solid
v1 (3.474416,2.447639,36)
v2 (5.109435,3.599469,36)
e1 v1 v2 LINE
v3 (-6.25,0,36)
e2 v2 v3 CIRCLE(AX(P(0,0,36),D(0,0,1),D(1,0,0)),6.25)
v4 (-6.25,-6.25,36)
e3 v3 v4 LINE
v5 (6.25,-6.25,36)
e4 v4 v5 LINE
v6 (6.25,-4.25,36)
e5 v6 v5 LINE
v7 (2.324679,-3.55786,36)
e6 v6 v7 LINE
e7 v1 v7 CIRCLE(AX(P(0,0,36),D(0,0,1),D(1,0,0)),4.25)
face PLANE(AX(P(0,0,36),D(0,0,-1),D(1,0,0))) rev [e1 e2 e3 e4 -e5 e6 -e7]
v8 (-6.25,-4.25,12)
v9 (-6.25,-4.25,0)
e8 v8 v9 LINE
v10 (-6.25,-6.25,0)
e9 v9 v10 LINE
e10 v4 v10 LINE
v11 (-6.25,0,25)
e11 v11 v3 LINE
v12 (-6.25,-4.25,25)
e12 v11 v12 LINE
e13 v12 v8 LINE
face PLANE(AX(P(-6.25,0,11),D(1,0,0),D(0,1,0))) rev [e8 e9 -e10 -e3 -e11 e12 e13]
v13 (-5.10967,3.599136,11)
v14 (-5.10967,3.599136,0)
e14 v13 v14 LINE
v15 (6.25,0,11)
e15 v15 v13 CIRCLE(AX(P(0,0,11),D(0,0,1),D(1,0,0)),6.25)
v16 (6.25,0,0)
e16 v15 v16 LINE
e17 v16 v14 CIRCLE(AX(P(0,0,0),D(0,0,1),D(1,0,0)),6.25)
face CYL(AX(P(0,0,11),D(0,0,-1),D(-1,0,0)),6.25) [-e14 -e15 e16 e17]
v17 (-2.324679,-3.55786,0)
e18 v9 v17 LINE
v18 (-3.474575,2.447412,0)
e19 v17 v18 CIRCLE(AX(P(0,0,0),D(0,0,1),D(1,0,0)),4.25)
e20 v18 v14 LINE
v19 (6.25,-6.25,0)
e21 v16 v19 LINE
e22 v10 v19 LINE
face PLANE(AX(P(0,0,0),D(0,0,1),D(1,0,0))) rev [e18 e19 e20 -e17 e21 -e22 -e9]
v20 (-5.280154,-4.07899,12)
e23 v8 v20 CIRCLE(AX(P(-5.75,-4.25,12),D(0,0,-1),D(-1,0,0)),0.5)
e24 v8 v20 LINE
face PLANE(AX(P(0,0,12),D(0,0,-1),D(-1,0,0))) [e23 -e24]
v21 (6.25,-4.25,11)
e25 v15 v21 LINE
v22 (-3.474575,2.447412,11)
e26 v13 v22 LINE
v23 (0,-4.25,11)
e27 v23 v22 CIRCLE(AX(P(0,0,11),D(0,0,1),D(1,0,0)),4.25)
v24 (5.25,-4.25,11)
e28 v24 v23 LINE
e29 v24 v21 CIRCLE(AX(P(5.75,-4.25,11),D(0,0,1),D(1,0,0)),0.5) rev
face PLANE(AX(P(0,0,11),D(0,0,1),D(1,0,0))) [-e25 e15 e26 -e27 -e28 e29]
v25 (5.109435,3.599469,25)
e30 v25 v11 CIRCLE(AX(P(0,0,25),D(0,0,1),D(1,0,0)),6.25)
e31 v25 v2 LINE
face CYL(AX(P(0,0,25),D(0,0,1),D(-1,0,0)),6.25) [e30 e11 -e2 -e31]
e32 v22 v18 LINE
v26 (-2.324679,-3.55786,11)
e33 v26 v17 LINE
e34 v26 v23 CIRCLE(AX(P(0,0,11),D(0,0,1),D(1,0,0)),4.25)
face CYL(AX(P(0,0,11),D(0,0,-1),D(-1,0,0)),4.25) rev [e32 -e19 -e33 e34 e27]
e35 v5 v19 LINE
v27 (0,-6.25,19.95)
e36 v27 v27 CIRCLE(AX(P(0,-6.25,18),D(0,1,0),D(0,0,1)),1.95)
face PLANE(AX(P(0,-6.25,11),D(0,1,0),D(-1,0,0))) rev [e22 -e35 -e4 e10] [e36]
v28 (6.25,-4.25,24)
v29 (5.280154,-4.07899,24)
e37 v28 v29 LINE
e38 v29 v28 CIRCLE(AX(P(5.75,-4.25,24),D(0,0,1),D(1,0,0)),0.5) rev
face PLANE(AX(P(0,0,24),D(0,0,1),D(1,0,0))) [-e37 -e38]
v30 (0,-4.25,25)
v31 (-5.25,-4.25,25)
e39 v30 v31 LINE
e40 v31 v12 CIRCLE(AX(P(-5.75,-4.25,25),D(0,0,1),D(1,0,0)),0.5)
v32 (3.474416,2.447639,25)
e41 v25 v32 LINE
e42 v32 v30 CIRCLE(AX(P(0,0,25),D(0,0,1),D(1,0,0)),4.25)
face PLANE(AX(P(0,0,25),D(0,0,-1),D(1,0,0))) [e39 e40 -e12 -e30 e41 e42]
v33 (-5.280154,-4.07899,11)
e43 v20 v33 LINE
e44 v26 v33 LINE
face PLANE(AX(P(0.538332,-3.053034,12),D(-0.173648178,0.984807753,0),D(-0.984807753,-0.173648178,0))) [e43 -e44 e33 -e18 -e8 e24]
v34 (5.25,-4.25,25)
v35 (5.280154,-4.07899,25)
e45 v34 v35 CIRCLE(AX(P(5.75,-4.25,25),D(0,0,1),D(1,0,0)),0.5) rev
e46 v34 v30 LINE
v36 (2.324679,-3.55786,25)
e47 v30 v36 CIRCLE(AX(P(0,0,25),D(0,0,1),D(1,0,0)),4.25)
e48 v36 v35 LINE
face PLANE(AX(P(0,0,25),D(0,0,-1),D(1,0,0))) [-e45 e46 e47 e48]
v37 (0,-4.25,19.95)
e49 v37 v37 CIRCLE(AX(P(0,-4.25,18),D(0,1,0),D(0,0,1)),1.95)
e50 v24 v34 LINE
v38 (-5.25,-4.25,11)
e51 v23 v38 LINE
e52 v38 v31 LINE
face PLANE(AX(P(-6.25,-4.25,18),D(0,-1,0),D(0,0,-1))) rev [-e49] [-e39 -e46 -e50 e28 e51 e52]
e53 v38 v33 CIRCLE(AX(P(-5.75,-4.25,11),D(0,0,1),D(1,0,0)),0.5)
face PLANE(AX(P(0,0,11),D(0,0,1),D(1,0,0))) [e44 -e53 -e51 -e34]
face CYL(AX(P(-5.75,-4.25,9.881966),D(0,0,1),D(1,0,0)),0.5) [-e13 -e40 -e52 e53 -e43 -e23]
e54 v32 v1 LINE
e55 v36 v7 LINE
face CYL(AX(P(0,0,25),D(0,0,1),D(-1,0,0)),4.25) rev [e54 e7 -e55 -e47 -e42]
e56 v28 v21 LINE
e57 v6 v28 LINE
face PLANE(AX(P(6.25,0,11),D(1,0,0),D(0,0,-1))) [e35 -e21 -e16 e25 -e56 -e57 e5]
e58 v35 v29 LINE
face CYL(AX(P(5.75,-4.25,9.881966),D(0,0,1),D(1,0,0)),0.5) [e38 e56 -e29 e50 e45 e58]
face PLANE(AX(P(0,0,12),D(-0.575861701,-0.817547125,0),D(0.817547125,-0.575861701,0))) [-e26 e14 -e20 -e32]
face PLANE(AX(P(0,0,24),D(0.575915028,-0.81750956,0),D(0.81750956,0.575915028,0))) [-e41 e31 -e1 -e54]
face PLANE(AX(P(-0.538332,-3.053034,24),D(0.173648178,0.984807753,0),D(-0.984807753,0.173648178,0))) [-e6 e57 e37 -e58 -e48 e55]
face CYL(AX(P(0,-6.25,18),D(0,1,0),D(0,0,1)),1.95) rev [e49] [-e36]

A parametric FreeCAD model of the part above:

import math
import FreeCAD as App
import Part
import Sketcher
Q = App.Units.Quantity


def add_polygon(sketch, points):
    """Adds a closed chain of lines whose ends are joined by coincident constraints."""
    first, n = sketch.GeometryCount, len(points)
    for a, b in zip(points, points[1:] + points[:1]):
        sketch.addGeometry(Part.LineSegment(App.Vector(*a, 0), App.Vector(*b, 0)), False)
    for i in range(n):
        sketch.addConstraint(Sketcher.Constraint("Coincident", first + i, 2, first + (i + 1) % n, 1))

doc = App.newDocument("Part")
body = doc.addObject("PartDesign::Body", "Body")

# Sketch on XY plane
sketch1 = doc.addObject("Sketcher::SketchObject", "Sketch")
body.addObject(sketch1)
sketch1.AttachmentSupport = (doc.XY_Plane, [""])
sketch1.MapMode = "FlatFace"
sketch1.addGeometry([
    Part.LineSegment(App.Vector(-6.25, -6.25, 0), App.Vector(6.25, -6.25, 0)),  # 0
    Part.LineSegment(App.Vector(6.25, -6.25, 0), App.Vector(6.25, 0, 0)),  # 1
    Part.ArcOfCircle(Part.Circle(App.Vector(0, 0, 0), App.Vector(0, 0, 1), 6.25), math.radians(0), math.radians(90)),  # 2
    Part.ArcOfCircle(Part.Circle(App.Vector(0, 0, 0), App.Vector(0, 0, 1), 6.25), math.radians(90), math.radians(180)),  # 3
    Part.LineSegment(App.Vector(-6.25, 0, 0), App.Vector(-6.25, -6.25, 0)),  # 4
    Part.Circle(App.Vector(0, 0, 0), App.Vector(0, 0, 1), 4.25),  # 5
], False)
sketch1.addConstraint([
    Sketcher.Constraint("Coincident", 0, 2, 1, 1),
    Sketcher.Constraint("Tangent", 1, 2, 2, 1),
    Sketcher.Constraint("Tangent", 2, 2, 3, 1),
    Sketcher.Constraint("Tangent", 3, 2, 4, 1),
    Sketcher.Constraint("Coincident", 4, 2, 0, 1),
    Sketcher.Constraint("Horizontal", 0),
    Sketcher.Constraint("Vertical", 1),
    Sketcher.Constraint("Vertical", 4),
    Sketcher.Constraint("Coincident", 2, 3, -1, 1),
    Sketcher.Constraint("Coincident", 5, 3, -1, 1),
    Sketcher.Constraint("Equal", 2, 3),
    Sketcher.Constraint("PointOnObject", 2, 2, -2),
    Sketcher.Constraint("Diameter", 5, 8.5),
    Sketcher.Constraint("Radius", 2, 6.25),
    Sketcher.Constraint("DistanceY", 1, 1, 1, 2, 6.25),
])
pad1 = doc.addObject("PartDesign::Pad", "Pad")
body.addObject(pad1)
pad1.Profile = sketch1
pad1.Length = 11

# Sketch on XY plane
sketch2 = doc.addObject("Sketcher::SketchObject", "Sketch001")
body.addObject(sketch2)
sketch2.AttachmentSupport = (doc.XY_Plane, [""])
sketch2.MapMode = "FlatFace"
sketch2.AttachmentOffset = App.Placement(App.Vector(0, 0, 11), App.Rotation())
add_polygon(sketch2, [(-6.25, -4.25), (-6.25, -6.25), (6.25, -6.25), (6.25, -4.25)])  # lines 0-3
sketch2.addConstraint([
    Sketcher.Constraint("Vertical", 0),
    Sketcher.Constraint("Horizontal", 1),
    Sketcher.Constraint("Vertical", 2),
    Sketcher.Constraint("Horizontal", 3),
    Sketcher.Constraint("DistanceY", 0, 2, 0, 1, 2.0),
    Sketcher.Constraint("DistanceX", 1, 1, 1, 2, 12.5),
    Sketcher.Constraint("DistanceX", 0, 2, -1, 1, 6.25),
    Sketcher.Constraint("DistanceY", 0, 2, -1, 1, 6.25),
])
pad2 = doc.addObject("PartDesign::Pad", "Pad001")
body.addObject(pad2)
pad2.Profile = sketch2
pad2.Length = 7

# Sketch on XY plane
sketch3 = doc.addObject("Sketcher::SketchObject", "Sketch002")
body.addObject(sketch3)
sketch3.AttachmentSupport = (doc.XY_Plane, [""])
sketch3.MapMode = "FlatFace"
sketch3.AttachmentOffset = App.Placement(App.Vector(0, 0, 18), App.Rotation())
sketch3.addGeometry([
    Part.LineSegment(App.Vector(5.25, -4.25, 0), App.Vector(6.25, -4.25, 0)),
    Part.ArcOfCircle(Part.Circle(App.Vector(5.75, -4.25, 0), App.Vector(0, 0, 1), 0.5), math.radians(0), math.radians(180)),
    Part.LineSegment(App.Vector(-6.25, -4.25, 0), App.Vector(-5.25, -4.25, 0)),
    Part.ArcOfCircle(Part.Circle(App.Vector(-5.75, -4.25, 0), App.Vector(0, 0, 1), 0.5), math.radians(0), math.radians(180)),
], False)
sketch3.addConstraint([
    Sketcher.Constraint("Coincident", 0, 1, 1, 2),
    Sketcher.Constraint("Coincident", 1, 1, 0, 2),
    Sketcher.Constraint("Coincident", 2, 1, 3, 2),
    Sketcher.Constraint("Coincident", 3, 1, 2, 2),
    Sketcher.Constraint("Horizontal", 0),
    Sketcher.Constraint("Horizontal", 2),
    Sketcher.Constraint("Equal", 1, 3),
    Sketcher.Constraint("Symmetric", 1, 3, 3, 3, -2),
    Sketcher.Constraint("Horizontal", 3, 3, 0, 1),
    Sketcher.Constraint("Horizontal", 1, 1, 2, 1),
    Sketcher.Constraint("Radius", 1, 0.5),
    Sketcher.Constraint("DistanceX", 3, 3, 0, 1, 11.0),
    Sketcher.Constraint("DistanceY", 1, 3, -1, 1, 4.25),
])
pad3 = doc.addObject("PartDesign::Pad", "Pad002")
body.addObject(pad3)
pad3.Profile = sketch3
pad3.Length = 7
pad3.Reversed = True
doc.recompute()

datumplane = doc.addObject("PartDesign::Plane", "DatumPlane")
body.addObject(datumplane)
datumplane.AttachmentSupport = (doc.XY_Plane, [""])
datumplane.MapMode = "FlatFace"
datumplane.AttachmentOffset = App.Placement(App.Vector(0, 0, 18), App.Rotation())
mirrored = doc.addObject("PartDesign::Mirrored", "Mirrored")
body.addObject(mirrored)
mirrored.Originals = [pad1, pad2, pad3]
mirrored.MirrorPlane = (datumplane, [""])
body.Tip = mirrored

# Sketch on XZ plane
sketch4 = doc.addObject("Sketcher::SketchObject", "Sketch003")
body.addObject(sketch4)
sketch4.AttachmentSupport = (doc.XZ_Plane, [""])
sketch4.MapMode = "FlatFace"
sketch4.AttachmentOffset = App.Placement(App.Vector(0, 0, 4.25), App.Rotation())
sketch4.addGeometry(Part.Circle(App.Vector(0, 18, 0), App.Vector(0, 0, 1), 1.95), False)
sketch4.addConstraint([
    Sketcher.Constraint("PointOnObject", 0, 3, -2),
    Sketcher.Constraint("Diameter", 0, 3.9),
    Sketcher.Constraint("DistanceY", -1, 1, 0, 3, 18.0),
])
pocket1 = doc.addObject("PartDesign::Pocket", "Pocket")
body.addObject(pocket1)
pocket1.Profile = sketch4
pocket1.Length = 2
pocket1.Reversed = True

# Sketch on XY plane
sketch5 = doc.addObject("Sketcher::SketchObject", "Sketch004")
body.addObject(sketch5)
sketch5.AttachmentSupport = (doc.XY_Plane, [""])
sketch5.MapMode = "FlatFace"
sketch5.AttachmentOffset = App.Placement(App.Vector(0, 0, 36), App.Rotation())
sketch5.addGeometry([
    Part.LineSegment(App.Vector(2.324679, -3.55786, 0), App.Vector(6.25, -4.25, 0)),  # 0
    Part.LineSegment(App.Vector(6.25, -4.25, 0), App.Vector(6.25, 0, 0)),  # 1
    Part.ArcOfCircle(Part.Circle(App.Vector(0, 0, 0), App.Vector(0, 0, 1), 6.25), math.radians(0), math.radians(35.163737)),  # 2
    Part.LineSegment(App.Vector(5.109435, 3.599469, 0), App.Vector(3.474416, 2.447639, 0)),  # 3
    Part.ArcOfCircle(Part.Circle(App.Vector(0, 0, 0), App.Vector(0, 0, 1), 4.25), math.radians(0), math.radians(35.163737)),  # 4
    Part.ArcOfCircle(Part.Circle(App.Vector(0, 0, 0), App.Vector(0, 0, 1), 4.25), math.radians(-56.839701), math.radians(0)),  # 5
], False)
sketch5.addConstraint([
    Sketcher.Constraint("Coincident", 0, 2, 1, 1),
    Sketcher.Constraint("Tangent", 1, 2, 2, 1),
    Sketcher.Constraint("Coincident", 2, 2, 3, 1),
    Sketcher.Constraint("Coincident", 3, 2, 4, 2),
    Sketcher.Constraint("Tangent", 4, 1, 5, 2),
    Sketcher.Constraint("Coincident", 5, 1, 0, 1),
    Sketcher.Constraint("Vertical", 1),
    Sketcher.Constraint("Coincident", 2, 3, -1, 1),
    Sketcher.Constraint("Coincident", 4, 3, -1, 1),
    Sketcher.Constraint("Equal", 4, 5),
    Sketcher.Constraint("PointOnObject", 4, 1, -1),
    Sketcher.Constraint("Angle", 0, Q("-10 deg")),
    Sketcher.Constraint("Radius", 2, 6.25),
    Sketcher.Constraint("Radius", 4, 4.25),
    Sketcher.Constraint("DistanceY", 1, 1, 1, 2, 4.25),
    Sketcher.Constraint("DistanceY", -1, 1, 2, 2, 3.599469),
    Sketcher.Constraint("DistanceY", -1, 1, 3, 2, 2.447639),
])
pocket2 = doc.addObject("PartDesign::Pocket", "Pocket001")
body.addObject(pocket2)
pocket2.Profile = sketch5
pocket2.Length = 12

# Sketch on XY plane
sketch6 = doc.addObject("Sketcher::SketchObject", "Sketch005")
body.addObject(sketch6)
sketch6.AttachmentSupport = (doc.XY_Plane, [""])
sketch6.MapMode = "FlatFace"
sketch6.addGeometry([
    Part.LineSegment(App.Vector(-2.324679, -3.55786, 0), App.Vector(-6.25, -4.25, 0)),  # 0
    Part.LineSegment(App.Vector(-6.25, -4.25, 0), App.Vector(-6.25, 0, 0)),  # 1
    Part.ArcOfCircle(Part.Circle(App.Vector(0, 0, 0), App.Vector(0, 0, 1), 6.25), math.radians(144.84), math.radians(180)),  # 2
    Part.LineSegment(App.Vector(-5.10967, 3.599136, 0), App.Vector(-3.474575, 2.447412, 0)),  # 3
    Part.ArcOfCircle(Part.Circle(App.Vector(0, 0, 0), App.Vector(0, 0, 1), 4.25), math.radians(144.84), math.radians(180)),  # 4
    Part.ArcOfCircle(Part.Circle(App.Vector(0, 0, 0), App.Vector(0, 0, 1), 4.25), math.radians(-180), math.radians(-123.160299)),  # 5
], False)
sketch6.addConstraint([
    Sketcher.Constraint("Coincident", 0, 2, 1, 1),
    Sketcher.Constraint("Tangent", 1, 2, 2, 2),
    Sketcher.Constraint("Coincident", 2, 1, 3, 1),
    Sketcher.Constraint("Coincident", 3, 2, 4, 1),
    Sketcher.Constraint("Tangent", 4, 2, 5, 1),
    Sketcher.Constraint("Coincident", 5, 2, 0, 1),
    Sketcher.Constraint("Vertical", 1),
    Sketcher.Constraint("Coincident", 2, 3, -1, 1),
    Sketcher.Constraint("Coincident", 4, 3, -1, 1),
    Sketcher.Constraint("Equal", 4, 5),
    Sketcher.Constraint("PointOnObject", 4, 2, -1),
    Sketcher.Constraint("Angle", 0, Q("-170 deg")),
    Sketcher.Constraint("Radius", 2, 6.25),
    Sketcher.Constraint("Radius", 4, 4.25),
    Sketcher.Constraint("DistanceY", 1, 1, 1, 2, 4.25),
    Sketcher.Constraint("Angle", 3, Q("-35.16 deg")),
    Sketcher.Constraint("DistanceX", 2, 1, -1, 1, 5.10967),
])
pocket3 = doc.addObject("PartDesign::Pocket", "Pocket002")
body.addObject(pocket3)
pocket3.Profile = sketch6
pocket3.Length = 12
pocket3.Reversed = True

doc.recompute()
